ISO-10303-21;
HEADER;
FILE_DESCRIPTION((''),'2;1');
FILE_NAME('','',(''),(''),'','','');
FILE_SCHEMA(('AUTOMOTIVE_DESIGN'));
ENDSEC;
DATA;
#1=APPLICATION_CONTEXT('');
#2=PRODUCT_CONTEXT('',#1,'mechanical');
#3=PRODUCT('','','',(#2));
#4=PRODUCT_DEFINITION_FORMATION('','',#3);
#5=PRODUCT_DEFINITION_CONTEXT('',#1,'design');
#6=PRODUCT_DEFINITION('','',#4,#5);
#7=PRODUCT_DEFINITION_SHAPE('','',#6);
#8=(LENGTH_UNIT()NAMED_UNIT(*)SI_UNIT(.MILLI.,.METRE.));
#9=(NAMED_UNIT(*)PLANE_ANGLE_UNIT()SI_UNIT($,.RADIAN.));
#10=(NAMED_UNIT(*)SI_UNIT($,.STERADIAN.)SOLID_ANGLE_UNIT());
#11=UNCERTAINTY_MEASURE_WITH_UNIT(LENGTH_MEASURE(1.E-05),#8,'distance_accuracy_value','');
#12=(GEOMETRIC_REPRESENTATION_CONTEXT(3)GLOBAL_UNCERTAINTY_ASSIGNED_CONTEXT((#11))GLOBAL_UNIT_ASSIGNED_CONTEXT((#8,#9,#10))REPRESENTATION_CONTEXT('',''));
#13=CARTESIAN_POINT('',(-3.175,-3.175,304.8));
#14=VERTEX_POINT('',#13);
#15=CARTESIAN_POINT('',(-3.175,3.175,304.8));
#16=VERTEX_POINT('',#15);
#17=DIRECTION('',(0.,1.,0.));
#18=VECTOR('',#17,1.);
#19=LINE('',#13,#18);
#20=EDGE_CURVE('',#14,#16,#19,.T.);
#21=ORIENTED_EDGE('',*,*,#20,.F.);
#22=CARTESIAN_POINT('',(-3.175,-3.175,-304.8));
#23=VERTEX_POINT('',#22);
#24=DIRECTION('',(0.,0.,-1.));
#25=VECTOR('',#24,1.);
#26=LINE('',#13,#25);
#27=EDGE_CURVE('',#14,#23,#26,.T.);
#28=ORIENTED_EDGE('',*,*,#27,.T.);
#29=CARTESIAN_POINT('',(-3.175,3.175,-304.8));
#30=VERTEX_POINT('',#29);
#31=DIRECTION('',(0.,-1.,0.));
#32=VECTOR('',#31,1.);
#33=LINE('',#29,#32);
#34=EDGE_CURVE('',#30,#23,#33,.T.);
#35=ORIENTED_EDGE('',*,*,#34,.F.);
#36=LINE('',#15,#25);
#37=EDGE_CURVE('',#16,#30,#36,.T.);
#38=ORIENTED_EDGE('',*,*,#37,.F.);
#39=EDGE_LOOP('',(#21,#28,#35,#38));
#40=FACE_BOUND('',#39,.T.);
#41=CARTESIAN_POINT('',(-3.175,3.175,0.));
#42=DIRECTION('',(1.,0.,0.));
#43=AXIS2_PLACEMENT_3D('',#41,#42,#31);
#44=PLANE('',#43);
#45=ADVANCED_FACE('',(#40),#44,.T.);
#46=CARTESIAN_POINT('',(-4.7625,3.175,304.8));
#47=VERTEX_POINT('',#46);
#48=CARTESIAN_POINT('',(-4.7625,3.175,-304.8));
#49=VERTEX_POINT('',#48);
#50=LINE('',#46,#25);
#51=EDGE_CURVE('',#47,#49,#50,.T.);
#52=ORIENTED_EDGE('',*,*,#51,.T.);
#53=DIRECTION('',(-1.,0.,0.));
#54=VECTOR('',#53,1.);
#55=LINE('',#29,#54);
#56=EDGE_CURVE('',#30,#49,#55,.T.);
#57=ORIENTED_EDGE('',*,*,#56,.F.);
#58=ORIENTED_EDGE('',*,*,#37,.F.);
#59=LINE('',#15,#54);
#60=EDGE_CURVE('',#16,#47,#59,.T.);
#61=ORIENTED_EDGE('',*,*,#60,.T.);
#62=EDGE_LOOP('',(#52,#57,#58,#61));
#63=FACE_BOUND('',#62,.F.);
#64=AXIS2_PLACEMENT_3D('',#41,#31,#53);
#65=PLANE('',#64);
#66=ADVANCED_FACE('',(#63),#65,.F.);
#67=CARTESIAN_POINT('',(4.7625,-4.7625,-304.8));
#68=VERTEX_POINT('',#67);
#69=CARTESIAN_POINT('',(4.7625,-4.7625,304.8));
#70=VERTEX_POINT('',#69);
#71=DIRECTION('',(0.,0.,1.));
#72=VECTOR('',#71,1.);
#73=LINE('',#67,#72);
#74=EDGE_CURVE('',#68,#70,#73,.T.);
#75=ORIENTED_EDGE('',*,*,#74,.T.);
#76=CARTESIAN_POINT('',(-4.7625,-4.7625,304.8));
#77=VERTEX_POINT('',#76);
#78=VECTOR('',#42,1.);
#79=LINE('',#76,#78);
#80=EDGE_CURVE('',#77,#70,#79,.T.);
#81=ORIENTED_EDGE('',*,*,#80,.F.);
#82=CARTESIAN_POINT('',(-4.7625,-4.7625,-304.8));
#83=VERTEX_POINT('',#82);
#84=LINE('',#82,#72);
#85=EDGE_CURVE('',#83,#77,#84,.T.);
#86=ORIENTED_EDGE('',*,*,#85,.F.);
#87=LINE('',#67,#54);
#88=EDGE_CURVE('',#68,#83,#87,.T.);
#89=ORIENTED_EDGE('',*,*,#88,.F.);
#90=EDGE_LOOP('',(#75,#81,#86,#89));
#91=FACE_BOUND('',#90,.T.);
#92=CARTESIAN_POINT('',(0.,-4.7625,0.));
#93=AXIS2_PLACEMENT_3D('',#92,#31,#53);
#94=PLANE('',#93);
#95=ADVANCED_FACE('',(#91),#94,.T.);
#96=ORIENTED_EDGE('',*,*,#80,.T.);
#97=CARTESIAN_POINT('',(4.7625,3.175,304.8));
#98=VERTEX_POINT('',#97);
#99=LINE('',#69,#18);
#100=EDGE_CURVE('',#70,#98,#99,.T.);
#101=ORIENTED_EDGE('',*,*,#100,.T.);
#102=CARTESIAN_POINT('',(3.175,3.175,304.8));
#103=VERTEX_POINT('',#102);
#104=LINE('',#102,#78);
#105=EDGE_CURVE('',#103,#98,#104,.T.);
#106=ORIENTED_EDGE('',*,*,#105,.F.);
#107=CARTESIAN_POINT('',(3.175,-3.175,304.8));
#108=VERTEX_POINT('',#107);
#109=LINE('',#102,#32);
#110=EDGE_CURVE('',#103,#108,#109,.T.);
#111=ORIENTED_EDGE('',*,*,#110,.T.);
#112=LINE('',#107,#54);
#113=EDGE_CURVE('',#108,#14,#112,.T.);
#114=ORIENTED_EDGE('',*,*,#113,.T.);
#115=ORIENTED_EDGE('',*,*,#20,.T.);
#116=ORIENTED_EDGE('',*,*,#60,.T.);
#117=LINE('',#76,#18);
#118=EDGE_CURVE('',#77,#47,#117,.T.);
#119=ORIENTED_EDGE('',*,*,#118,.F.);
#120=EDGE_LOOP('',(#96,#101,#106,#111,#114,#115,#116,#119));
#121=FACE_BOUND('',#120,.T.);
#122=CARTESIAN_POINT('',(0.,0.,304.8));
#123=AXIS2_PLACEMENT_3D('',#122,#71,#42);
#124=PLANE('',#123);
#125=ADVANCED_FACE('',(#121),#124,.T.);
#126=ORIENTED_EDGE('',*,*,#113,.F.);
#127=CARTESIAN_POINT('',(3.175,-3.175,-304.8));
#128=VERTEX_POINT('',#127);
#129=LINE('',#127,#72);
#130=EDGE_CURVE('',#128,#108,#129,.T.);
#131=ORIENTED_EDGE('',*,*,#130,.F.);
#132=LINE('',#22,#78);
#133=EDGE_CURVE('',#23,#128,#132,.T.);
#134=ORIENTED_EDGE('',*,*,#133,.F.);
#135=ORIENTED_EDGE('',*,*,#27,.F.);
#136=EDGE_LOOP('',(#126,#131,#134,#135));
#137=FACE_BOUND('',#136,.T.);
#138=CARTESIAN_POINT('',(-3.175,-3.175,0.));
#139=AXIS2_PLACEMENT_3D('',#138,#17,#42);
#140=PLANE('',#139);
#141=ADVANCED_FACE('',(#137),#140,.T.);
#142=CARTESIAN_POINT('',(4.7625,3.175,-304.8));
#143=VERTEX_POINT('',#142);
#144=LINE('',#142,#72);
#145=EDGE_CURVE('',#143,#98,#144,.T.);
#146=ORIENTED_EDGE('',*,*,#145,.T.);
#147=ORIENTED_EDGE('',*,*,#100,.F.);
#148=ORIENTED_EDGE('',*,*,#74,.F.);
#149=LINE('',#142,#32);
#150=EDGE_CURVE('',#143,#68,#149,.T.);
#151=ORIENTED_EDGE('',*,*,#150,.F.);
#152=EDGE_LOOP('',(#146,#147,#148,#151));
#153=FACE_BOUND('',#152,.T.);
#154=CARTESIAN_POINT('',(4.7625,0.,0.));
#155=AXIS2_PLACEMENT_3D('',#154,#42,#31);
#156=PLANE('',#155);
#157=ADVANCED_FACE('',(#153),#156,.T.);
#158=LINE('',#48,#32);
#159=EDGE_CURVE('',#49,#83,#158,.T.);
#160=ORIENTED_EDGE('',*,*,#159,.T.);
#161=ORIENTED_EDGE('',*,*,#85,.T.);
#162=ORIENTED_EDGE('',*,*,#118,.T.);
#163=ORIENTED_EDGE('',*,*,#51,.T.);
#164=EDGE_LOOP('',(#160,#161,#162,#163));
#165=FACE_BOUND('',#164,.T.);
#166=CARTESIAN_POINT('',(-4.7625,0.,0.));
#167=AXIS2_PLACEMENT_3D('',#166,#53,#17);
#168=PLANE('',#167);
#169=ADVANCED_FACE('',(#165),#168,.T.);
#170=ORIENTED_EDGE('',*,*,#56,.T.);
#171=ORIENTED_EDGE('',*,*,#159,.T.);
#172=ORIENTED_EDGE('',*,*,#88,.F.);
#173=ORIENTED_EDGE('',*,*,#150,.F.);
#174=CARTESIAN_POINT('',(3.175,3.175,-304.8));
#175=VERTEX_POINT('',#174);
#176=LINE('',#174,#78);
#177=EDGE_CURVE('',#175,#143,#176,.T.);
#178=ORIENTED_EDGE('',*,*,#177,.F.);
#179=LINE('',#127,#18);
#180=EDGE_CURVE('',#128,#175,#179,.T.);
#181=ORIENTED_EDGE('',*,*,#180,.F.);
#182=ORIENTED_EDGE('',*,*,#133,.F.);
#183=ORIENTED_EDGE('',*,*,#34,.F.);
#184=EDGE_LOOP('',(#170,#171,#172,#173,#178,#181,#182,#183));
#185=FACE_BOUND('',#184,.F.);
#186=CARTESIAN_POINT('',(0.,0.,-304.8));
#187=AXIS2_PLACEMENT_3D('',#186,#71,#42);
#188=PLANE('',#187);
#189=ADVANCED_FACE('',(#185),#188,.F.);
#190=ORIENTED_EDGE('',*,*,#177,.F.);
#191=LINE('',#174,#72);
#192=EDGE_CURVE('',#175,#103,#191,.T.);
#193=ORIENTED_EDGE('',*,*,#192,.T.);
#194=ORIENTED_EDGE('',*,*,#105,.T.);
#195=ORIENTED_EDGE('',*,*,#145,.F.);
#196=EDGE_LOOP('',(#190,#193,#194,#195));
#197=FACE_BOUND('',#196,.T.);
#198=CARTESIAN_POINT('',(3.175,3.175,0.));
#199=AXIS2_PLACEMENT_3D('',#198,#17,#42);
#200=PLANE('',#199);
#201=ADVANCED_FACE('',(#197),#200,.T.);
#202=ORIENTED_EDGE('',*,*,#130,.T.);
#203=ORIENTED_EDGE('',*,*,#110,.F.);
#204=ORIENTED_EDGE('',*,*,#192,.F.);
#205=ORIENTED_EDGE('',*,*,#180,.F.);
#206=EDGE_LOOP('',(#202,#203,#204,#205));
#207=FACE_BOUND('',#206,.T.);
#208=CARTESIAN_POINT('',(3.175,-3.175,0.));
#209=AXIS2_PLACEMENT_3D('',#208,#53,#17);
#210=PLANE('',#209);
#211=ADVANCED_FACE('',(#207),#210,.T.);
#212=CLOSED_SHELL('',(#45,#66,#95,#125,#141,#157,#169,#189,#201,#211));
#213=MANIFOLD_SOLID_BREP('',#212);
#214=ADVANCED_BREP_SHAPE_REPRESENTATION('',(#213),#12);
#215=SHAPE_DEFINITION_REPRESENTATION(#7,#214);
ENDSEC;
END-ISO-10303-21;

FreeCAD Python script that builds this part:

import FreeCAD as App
import Part
import Sketcher

V = App.Vector
Q = App.Units.Quantity

doc = App.newDocument("Part")
body = doc.addObject("PartDesign::Body", "Body")

sketch1 = doc.addObject("Sketcher::SketchObject", "Sketch")
body.addObject(sketch1)
sketch1.AttachmentSupport = (doc.XY_Plane, [""])
sketch1.MapMode = "FlatFace"
sketch1.addGeometry(Part.LineSegment(V(-4.7625, 3.175, 0), V(-4.7625, -4.7625, 0)), False)
sketch1.addGeometry(Part.LineSegment(V(-4.7625, -4.7625, 0), V(4.7625, -4.7625, 0)), False)
sketch1.addGeometry(Part.LineSegment(V(4.7625, -4.7625, 0), V(4.7625, 3.175, 0)), False)
sketch1.addGeometry(Part.LineSegment(V(4.7625, 3.175, 0), V(3.175, 3.175, 0)), False)
sketch1.addGeometry(Part.LineSegment(V(3.175, 3.175, 0), V(3.175, -3.175, 0)), False)
sketch1.addGeometry(Part.LineSegment(V(3.175, -3.175, 0), V(-3.175, -3.175, 0)), False)
sketch1.addGeometry(Part.LineSegment(V(-3.175, -3.175, 0), V(-3.175, 3.175, 0)), False)
sketch1.addGeometry(Part.LineSegment(V(-3.175, 3.175, 0), V(-4.7625, 3.175, 0)), False)
sketch1.addConstraint(Sketcher.Constraint("Coincident", 0, 2, 1, 1))
sketch1.addConstraint(Sketcher.Constraint("Coincident", 1, 2, 2, 1))
sketch1.addConstraint(Sketcher.Constraint("Coincident", 2, 2, 3, 1))
sketch1.addConstraint(Sketcher.Constraint("Coincident", 3, 2, 4, 1))
sketch1.addConstraint(Sketcher.Constraint("Coincident", 4, 2, 5, 1))
sketch1.addConstraint(Sketcher.Constraint("Coincident", 5, 2, 6, 1))
sketch1.addConstraint(Sketcher.Constraint("Coincident", 6, 2, 7, 1))
sketch1.addConstraint(Sketcher.Constraint("Coincident", 7, 2, 0, 1))
sketch1.addConstraint(Sketcher.Constraint("Vertical", 0))
sketch1.addConstraint(Sketcher.Constraint("Horizontal", 1))
sketch1.addConstraint(Sketcher.Constraint("Vertical", 2))
sketch1.addConstraint(Sketcher.Constraint("Horizontal", 3))
sketch1.addConstraint(Sketcher.Constraint("Vertical", 4))
sketch1.addConstraint(Sketcher.Constraint("Horizontal", 5))
sketch1.addConstraint(Sketcher.Constraint("Vertical", 6))
sketch1.addConstraint(Sketcher.Constraint("Horizontal", 7))
sketch1.addConstraint(Sketcher.Constraint("Symmetric", 3, 2, 5, 2, -1, 1))
sketch1.addConstraint(Sketcher.Constraint("Symmetric", 2, 2, 7, 2, -2))
sketch1.addConstraint(Sketcher.Constraint("Equal", 5, 4))
sketch1.addConstraint(Sketcher.Constraint("DistanceX", 5, 2, 5, 1, Q("0.25 in")))
sketch1.addConstraint(Sketcher.Constraint("DistanceX", 3, 2, 3, 1, Q("0.0625 in")))
sketch1.addConstraint(Sketcher.Constraint("DistanceY", 1, 2, 4, 2, Q("0.0625 in")))
pad1 = doc.addObject("PartDesign::Pad", "Pad")
body.addObject(pad1)
pad1.Profile = sketch1
pad1.Length = Q("24 in")
pad1.Midplane = True

doc.recompute()
